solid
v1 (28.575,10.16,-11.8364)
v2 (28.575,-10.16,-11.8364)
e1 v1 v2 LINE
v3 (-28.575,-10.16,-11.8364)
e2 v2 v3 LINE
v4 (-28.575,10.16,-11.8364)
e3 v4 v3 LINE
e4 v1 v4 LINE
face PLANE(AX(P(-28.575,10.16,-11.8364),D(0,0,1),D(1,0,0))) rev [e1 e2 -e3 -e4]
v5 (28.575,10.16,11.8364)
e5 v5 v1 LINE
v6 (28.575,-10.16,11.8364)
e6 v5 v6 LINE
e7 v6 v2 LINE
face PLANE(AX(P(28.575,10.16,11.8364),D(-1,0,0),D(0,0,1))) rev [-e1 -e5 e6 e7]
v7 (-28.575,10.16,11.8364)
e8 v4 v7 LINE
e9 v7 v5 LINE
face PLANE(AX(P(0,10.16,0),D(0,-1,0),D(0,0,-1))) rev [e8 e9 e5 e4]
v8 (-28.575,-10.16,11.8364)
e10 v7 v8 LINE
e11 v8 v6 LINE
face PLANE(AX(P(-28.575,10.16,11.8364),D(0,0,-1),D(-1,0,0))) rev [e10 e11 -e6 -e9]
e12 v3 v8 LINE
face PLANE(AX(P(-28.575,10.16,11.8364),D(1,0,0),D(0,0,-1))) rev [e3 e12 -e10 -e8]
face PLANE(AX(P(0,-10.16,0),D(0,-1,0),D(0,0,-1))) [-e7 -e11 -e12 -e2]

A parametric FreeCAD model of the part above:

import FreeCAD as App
import Part
import Sketcher

V = App.Vector
Q = App.Units.Quantity


def add_polygon(sketch, points):
    """Adds a closed chain of lines whose ends are joined by coincident constraints."""
    first, n = sketch.GeometryCount, len(points)
    for a, b in zip(points, points[1:] + points[:1]):
        sketch.addGeometry(Part.LineSegment(App.Vector(*a, 0), App.Vector(*b, 0)), False)
    for i in range(n):
        sketch.addConstraint(Sketcher.Constraint("Coincident", first + i, 2, first + (i + 1) % n, 1))

doc = App.newDocument("Part")
params = doc.addObject("Spreadsheet::Sheet", "Params")
for row, (alias, value) in enumerate([
    ("sketch1_width", "2.25 in"),
    ("sketch1_height", "0.932 in"),
    ("pad1_length", "0.8 in"),
], start=1):
    params.set(f"A{row}", alias)
    params.set(f"B{row}", "=" + value)
    params.setAlias(f"B{row}", alias)

body = doc.addObject("PartDesign::Body", "Body")

# Sketch on XZ plane
sketch1 = doc.addObject("Sketcher::SketchObject", "Sketch")
body.addObject(sketch1)
sketch1.AttachmentSupport = (doc.XZ_Plane, [""])
sketch1.MapMode = "FlatFace"
add_polygon(sketch1, [(-29, -12), (-29, 12), (29, 12), (29, -12)])  # lines 0-3
sketch1.addConstraint([
    Sketcher.Constraint("Vertical", 0),
    Sketcher.Constraint("Horizontal", 1),
    Sketcher.Constraint("Vertical", 2),
    Sketcher.Constraint("Horizontal", 3),
    Sketcher.Constraint("Symmetric", 0, 2, 2, 2, -1, 1),
    Sketcher.Constraint("DistanceX", 1, 1, 1, 2, Q("2.25 in")),
    Sketcher.Constraint("DistanceY", 0, 1, 0, 2, Q("0.932 in")),
])
sketch1.setExpression("Constraints[9]", "Params.sketch1_width")
sketch1.setExpression("Constraints[10]", "Params.sketch1_height")
pad1 = doc.addObject("PartDesign::Pad", "Pad")
body.addObject(pad1)
pad1.Profile = sketch1
pad1.setExpression("Length", "Params.pad1_length")
pad1.Midplane = True

doc.recompute()
